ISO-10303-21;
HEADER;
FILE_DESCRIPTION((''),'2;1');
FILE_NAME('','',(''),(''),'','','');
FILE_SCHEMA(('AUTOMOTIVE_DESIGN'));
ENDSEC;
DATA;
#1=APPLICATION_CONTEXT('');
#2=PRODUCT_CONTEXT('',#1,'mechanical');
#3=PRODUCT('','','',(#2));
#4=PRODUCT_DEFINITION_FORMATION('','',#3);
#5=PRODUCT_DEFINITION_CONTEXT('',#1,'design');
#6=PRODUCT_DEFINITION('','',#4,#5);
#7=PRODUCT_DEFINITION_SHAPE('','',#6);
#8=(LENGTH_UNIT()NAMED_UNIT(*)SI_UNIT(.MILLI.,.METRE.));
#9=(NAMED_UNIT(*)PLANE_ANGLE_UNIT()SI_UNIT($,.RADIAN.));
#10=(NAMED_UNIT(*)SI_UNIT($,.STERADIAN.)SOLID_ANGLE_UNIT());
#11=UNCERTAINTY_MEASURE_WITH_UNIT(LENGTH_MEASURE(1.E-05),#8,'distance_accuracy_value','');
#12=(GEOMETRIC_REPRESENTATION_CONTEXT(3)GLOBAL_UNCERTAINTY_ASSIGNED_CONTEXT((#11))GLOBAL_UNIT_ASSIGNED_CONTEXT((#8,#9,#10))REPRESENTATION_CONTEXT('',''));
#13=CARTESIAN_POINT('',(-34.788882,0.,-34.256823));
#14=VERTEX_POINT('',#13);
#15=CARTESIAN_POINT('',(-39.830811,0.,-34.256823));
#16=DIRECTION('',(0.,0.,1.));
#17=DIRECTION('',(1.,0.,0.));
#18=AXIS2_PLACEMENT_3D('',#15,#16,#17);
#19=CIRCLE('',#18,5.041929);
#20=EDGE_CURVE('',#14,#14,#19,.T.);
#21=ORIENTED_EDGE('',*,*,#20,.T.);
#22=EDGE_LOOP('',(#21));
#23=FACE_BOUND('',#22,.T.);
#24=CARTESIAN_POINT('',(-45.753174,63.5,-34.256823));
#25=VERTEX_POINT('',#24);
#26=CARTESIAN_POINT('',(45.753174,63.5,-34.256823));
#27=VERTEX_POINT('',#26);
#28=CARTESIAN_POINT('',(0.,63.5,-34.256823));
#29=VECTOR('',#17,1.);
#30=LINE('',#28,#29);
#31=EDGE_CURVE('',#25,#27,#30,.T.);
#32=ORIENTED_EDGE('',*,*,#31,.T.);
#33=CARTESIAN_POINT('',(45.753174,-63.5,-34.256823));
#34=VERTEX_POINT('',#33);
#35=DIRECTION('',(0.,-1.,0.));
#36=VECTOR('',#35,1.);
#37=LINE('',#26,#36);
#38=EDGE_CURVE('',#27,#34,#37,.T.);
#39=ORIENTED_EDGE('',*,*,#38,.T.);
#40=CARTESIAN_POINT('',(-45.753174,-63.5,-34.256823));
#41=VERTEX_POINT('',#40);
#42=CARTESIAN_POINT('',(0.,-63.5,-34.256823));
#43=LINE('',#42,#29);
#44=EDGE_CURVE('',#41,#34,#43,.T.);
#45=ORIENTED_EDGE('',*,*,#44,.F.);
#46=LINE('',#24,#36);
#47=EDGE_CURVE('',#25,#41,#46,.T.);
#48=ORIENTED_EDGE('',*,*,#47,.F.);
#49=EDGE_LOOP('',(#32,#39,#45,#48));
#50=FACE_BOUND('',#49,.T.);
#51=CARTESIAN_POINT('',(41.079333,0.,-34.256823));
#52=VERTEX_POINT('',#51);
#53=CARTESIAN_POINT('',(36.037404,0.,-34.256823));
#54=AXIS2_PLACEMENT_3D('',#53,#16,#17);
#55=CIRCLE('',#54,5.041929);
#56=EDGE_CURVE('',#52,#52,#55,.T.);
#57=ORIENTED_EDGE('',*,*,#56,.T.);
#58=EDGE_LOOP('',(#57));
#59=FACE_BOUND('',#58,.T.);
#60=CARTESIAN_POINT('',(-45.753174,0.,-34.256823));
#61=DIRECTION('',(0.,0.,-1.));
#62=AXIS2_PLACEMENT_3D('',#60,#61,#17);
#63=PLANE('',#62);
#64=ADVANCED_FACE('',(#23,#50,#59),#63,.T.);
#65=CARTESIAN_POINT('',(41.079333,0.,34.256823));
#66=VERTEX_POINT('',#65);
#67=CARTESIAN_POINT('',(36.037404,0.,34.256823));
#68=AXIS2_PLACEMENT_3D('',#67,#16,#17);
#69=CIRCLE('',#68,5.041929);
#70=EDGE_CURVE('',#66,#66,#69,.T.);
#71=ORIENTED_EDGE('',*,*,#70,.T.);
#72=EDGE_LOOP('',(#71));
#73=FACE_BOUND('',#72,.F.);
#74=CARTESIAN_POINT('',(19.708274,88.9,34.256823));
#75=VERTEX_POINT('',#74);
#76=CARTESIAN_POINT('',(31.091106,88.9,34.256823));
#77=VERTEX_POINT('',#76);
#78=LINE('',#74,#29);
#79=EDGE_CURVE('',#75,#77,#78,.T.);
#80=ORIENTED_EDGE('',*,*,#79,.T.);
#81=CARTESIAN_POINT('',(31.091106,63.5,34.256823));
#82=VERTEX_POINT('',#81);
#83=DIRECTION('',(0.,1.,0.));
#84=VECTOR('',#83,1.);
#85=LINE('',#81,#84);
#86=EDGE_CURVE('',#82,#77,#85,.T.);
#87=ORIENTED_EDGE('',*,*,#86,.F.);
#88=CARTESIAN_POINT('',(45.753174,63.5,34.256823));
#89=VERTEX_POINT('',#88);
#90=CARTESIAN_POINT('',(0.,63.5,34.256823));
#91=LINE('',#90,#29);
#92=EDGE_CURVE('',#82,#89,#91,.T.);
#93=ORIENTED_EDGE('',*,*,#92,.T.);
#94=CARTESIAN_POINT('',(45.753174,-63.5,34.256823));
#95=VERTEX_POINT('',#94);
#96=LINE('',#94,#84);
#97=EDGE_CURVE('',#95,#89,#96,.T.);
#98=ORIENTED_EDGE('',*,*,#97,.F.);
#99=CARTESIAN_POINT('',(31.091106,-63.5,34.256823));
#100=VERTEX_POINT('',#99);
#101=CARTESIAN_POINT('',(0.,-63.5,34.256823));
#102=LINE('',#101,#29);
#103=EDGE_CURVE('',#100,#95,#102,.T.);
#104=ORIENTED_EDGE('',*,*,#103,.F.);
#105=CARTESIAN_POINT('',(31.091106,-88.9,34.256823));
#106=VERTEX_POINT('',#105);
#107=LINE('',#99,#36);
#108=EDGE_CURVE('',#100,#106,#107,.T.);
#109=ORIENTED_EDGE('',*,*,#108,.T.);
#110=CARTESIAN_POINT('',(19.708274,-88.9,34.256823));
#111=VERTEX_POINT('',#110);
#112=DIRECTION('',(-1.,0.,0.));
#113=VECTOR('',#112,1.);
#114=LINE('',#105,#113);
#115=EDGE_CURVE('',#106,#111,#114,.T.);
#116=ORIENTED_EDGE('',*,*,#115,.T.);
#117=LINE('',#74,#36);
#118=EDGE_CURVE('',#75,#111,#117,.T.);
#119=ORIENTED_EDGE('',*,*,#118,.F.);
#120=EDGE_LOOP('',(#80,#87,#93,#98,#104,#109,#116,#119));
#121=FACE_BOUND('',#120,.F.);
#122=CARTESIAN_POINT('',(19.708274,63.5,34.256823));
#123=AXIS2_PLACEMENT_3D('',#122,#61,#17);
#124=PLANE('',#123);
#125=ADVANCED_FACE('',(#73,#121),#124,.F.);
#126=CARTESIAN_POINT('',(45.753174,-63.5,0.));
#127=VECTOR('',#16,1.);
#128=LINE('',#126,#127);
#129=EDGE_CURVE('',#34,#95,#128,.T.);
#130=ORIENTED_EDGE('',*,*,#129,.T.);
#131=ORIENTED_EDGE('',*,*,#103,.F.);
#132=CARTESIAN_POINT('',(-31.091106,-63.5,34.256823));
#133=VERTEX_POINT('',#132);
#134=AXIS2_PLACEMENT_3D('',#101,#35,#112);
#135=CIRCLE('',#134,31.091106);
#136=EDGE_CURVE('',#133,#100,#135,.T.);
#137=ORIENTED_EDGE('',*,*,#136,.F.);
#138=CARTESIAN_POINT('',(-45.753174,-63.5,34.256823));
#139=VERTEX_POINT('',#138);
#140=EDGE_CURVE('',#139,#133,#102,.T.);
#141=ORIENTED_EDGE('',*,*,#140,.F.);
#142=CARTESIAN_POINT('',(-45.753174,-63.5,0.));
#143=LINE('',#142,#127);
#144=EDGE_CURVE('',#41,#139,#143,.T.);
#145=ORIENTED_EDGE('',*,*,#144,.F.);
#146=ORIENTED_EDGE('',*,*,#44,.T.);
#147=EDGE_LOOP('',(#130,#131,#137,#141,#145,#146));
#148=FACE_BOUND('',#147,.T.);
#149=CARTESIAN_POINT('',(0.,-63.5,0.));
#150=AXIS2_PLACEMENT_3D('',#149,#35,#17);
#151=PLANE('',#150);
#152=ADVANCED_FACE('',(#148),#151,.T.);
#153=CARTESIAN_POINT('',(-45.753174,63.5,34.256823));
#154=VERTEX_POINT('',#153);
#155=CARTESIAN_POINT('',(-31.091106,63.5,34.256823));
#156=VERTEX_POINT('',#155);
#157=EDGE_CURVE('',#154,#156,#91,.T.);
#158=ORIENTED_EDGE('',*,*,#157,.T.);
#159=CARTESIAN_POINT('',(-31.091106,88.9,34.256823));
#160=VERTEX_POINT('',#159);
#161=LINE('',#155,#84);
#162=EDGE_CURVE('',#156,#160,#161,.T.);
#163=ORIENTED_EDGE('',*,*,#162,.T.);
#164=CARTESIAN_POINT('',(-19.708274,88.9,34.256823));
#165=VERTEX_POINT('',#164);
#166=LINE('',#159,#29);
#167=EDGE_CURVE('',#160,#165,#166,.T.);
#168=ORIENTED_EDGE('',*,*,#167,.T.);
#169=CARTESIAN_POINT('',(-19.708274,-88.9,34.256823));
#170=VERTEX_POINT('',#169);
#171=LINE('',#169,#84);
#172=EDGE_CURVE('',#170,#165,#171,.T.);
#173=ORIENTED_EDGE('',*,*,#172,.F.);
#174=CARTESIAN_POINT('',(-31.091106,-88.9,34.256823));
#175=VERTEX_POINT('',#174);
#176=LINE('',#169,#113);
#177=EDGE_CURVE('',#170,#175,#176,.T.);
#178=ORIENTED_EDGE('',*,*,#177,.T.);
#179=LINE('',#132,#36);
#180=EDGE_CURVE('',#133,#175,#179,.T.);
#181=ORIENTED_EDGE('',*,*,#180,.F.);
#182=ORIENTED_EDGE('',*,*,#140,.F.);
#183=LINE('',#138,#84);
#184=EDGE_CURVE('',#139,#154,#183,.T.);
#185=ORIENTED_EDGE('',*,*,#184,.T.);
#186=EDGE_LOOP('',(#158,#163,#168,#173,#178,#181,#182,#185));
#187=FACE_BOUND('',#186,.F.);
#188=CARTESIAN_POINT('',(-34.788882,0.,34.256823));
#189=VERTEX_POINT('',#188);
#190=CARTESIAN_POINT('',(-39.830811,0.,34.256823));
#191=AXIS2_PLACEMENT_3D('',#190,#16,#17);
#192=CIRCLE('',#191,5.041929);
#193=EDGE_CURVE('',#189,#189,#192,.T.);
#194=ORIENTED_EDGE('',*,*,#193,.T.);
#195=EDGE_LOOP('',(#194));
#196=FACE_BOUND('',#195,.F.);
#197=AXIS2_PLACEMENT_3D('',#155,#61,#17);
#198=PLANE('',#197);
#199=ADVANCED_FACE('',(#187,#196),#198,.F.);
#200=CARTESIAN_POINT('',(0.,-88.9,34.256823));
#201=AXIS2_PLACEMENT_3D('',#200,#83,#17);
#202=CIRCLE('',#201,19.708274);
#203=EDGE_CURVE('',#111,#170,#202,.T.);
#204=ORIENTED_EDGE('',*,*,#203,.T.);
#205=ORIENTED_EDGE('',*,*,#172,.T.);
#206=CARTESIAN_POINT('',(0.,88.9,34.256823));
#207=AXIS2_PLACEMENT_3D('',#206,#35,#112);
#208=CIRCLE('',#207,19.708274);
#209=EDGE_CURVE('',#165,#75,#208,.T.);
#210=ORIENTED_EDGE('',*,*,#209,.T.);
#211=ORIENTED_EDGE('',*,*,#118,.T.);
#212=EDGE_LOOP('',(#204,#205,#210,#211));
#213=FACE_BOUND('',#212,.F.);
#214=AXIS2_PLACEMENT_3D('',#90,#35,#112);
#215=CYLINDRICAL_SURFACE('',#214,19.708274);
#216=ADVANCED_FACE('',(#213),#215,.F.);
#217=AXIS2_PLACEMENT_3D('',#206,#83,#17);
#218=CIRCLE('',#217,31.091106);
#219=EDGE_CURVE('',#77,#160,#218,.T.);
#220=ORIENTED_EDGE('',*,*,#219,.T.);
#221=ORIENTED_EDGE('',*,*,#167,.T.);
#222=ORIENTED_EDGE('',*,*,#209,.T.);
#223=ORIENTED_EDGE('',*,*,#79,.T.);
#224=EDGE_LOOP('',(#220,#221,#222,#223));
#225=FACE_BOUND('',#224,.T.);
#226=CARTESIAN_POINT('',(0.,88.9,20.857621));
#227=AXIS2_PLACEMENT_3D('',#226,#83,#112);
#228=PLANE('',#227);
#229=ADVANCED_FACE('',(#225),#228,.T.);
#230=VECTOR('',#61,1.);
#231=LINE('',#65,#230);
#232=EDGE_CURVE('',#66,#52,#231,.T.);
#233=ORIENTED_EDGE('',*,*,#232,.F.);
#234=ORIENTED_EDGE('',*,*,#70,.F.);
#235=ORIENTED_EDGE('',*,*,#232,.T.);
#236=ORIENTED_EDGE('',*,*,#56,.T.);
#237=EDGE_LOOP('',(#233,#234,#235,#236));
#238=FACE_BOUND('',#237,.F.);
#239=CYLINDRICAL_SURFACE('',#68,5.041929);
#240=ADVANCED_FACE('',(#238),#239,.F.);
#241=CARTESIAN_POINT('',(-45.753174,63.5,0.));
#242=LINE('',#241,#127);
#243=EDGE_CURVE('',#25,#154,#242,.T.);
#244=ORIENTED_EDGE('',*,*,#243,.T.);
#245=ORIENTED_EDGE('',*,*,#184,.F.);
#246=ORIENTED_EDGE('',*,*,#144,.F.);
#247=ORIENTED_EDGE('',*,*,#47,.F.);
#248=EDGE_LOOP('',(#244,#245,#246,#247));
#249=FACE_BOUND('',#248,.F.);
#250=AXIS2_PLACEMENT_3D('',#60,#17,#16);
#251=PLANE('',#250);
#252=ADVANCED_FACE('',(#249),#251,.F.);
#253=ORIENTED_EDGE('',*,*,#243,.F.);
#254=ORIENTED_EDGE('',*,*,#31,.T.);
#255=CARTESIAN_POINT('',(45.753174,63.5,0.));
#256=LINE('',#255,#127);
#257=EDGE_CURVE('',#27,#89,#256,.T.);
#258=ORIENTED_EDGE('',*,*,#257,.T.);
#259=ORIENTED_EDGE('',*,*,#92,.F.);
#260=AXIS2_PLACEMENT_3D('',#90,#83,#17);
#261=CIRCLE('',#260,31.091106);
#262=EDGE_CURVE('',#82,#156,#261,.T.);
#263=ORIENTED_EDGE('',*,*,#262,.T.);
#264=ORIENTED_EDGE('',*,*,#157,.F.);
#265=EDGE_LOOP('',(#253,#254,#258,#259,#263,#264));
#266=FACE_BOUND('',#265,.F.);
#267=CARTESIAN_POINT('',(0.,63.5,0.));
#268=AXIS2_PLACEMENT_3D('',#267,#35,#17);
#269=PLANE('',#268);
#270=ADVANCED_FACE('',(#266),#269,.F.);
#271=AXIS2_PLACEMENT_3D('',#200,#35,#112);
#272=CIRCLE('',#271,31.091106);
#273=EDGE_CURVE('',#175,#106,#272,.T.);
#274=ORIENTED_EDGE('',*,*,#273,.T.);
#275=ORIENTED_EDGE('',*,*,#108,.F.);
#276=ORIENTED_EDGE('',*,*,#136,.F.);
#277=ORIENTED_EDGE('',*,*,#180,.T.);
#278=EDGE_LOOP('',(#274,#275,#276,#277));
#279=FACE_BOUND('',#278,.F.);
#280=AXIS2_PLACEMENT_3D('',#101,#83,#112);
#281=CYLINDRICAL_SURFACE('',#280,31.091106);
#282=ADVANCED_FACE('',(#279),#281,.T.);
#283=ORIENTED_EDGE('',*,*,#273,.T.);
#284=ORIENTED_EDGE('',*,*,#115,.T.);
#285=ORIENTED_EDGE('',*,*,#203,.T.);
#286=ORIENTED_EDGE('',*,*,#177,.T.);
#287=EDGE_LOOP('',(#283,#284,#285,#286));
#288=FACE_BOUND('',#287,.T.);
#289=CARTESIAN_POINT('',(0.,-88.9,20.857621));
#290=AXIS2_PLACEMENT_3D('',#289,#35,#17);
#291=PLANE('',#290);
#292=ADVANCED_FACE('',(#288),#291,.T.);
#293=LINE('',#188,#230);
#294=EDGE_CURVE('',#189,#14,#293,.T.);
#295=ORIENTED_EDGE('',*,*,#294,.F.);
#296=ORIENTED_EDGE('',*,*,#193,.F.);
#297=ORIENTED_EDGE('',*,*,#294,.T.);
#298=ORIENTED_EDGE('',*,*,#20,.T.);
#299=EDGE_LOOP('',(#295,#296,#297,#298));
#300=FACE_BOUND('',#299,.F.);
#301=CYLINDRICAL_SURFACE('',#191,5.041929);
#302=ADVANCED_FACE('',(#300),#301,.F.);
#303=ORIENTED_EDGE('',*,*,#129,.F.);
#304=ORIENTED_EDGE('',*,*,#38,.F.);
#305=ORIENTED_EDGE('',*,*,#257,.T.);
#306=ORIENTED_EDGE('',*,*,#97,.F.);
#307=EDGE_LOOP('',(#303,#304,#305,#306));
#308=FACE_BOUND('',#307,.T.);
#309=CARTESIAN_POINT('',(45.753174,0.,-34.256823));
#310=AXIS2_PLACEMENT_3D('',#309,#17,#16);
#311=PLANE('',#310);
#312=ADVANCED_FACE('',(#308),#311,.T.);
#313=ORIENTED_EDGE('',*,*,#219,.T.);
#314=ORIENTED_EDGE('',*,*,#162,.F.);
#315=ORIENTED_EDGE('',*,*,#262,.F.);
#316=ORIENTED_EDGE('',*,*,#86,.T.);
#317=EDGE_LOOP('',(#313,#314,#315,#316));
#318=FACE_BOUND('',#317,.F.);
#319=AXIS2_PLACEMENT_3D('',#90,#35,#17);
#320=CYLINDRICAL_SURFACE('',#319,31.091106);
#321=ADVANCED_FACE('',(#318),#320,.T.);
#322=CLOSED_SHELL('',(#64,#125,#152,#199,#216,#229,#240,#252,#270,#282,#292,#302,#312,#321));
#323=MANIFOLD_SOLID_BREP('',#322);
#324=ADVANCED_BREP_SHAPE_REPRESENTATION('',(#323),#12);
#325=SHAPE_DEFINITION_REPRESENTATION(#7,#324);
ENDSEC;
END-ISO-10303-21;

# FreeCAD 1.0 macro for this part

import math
import FreeCAD as App
import Part
import Sketcher


def add_polygon(sketch, points):
    """Adds a closed chain of lines whose ends are joined by coincident constraints."""
    first, n = sketch.GeometryCount, len(points)
    for a, b in zip(points, points[1:] + points[:1]):
        sketch.addGeometry(Part.LineSegment(App.Vector(*a, 0), App.Vector(*b, 0)), False)
    for i in range(n):
        sketch.addConstraint(Sketcher.Constraint("Coincident", first + i, 2, first + (i + 1) % n, 1))

doc = App.newDocument("Part")
params = doc.addObject("Spreadsheet::Sheet", "Params")
for row, (alias, value) in enumerate([
    ("pad1_length", "5 in"),
    ("pad2_length", "1 in"),
    ("pad3_length", "1 in"),
], start=1):
    params.set(f"A{row}", alias)
    params.set(f"B{row}", "=" + value)
    params.setAlias(f"B{row}", alias)

body = doc.addObject("PartDesign::Body", "Body")

sketch1 = body.newObject("Sketcher::SketchObject", "Sketch")
sketch1.AttachmentSupport = (doc.getObject("XZ_Plane"), [""])
sketch1.MapMode = "FlatFace"
add_polygon(sketch1, [(-46, 34), (-46, -34), (46, -34), (46, 34)])
sketch1.addConstraint(Sketcher.Constraint("Vertical", 0))
sketch1.addConstraint(Sketcher.Constraint("Horizontal", 1))
sketch1.addConstraint(Sketcher.Constraint("Vertical", 2))
sketch1.addConstraint(Sketcher.Constraint("Horizontal", 3))
sketch1.addConstraint(Sketcher.Constraint("Symmetric", 0, 2, 2, 2, -1, 1))
sketch1.addConstraint(Sketcher.Constraint("DistanceX", 1, 1, 1, 2, 91.506348))
sketch1.addConstraint(Sketcher.Constraint("DistanceY", 0, 2, 0, 1, 68.513646))
pad1 = body.newObject("PartDesign::Pad", "Pad")
pad1.Profile = sketch1
pad1.setExpression("Length", "Params.pad1_length")
pad1.Midplane = True

sketch2 = body.newObject("Sketcher::SketchObject", "Sketch001")
sketch2.AttachmentSupport = (doc.getObject("XZ_Plane"), [""])
sketch2.MapMode = "FlatFace"
sketch2.AttachmentOffset = App.Placement(App.Vector(0, 0, 2.5 * 25.4), App.Rotation())
sketch2.addGeometry(Part.LineSegment(App.Vector(-20, 34, 0), App.Vector(-31, 34, 0)), False)
sketch2.addGeometry(Part.ArcOfCircle(Part.Circle(App.Vector(0, 34, 0), App.Vector(0, 0, 1), 31), math.radians(180), math.radians(360)), False)
sketch2.addGeometry(Part.LineSegment(App.Vector(31, 34, 0), App.Vector(20, 34, 0)), False)
sketch2.addGeometry(Part.ArcOfCircle(Part.Circle(App.Vector(0, 34, 0), App.Vector(0, 0, 1), 20), math.radians(180), math.radians(360)), False)
sketch2.addConstraint(Sketcher.Constraint("Coincident", 0, 2, 1, 1))
sketch2.addConstraint(Sketcher.Constraint("Coincident", 1, 2, 2, 1))
sketch2.addConstraint(Sketcher.Constraint("Coincident", 2, 2, 3, 2))
sketch2.addConstraint(Sketcher.Constraint("Coincident", 3, 1, 0, 1))
sketch2.addConstraint(Sketcher.Constraint("Horizontal", 0))
sketch2.addConstraint(Sketcher.Constraint("Horizontal", 2))
sketch2.addConstraint(Sketcher.Constraint("Coincident", 3, 3, 1, 3))
sketch2.addConstraint(Sketcher.Constraint("Symmetric", 0, 2, 1, 2, -2))
sketch2.addConstraint(Sketcher.Constraint("Horizontal", 3, 3, 0, 2))
sketch2.addConstraint(Sketcher.Constraint("Radius", 1, 31.091106))
sketch2.addConstraint(Sketcher.Constraint("Radius", 3, 19.708274))
sketch2.addConstraint(Sketcher.Constraint("DistanceY", -1, 1, 1, 3, 34.256823))
pad2 = body.newObject("PartDesign::Pad", "Pad001")
pad2.Profile = sketch2
pad2.setExpression("Length", "Params.pad2_length")

sketch3 = body.newObject("Sketcher::SketchObject", "Sketch002")
sketch3.AttachmentSupport = (doc.getObject("XZ_Plane"), [""])
sketch3.MapMode = "FlatFace"
sketch3.AttachmentOffset = App.Placement(App.Vector(0, 0, 3.5 * 25.4), App.Rotation())
sketch3.addGeometry(Part.LineSegment(App.Vector(20, 34, 0), App.Vector(-20, 34, 0)), False)
sketch3.addGeometry(Part.ArcOfCircle(Part.Circle(App.Vector(0, 34, 0), App.Vector(0, 0, 1), 20), math.radians(180), math.radians(360)), False)
sketch3.addConstraint(Sketcher.Constraint("Coincident", 0, 1, 1, 2))
sketch3.addConstraint(Sketcher.Constraint("Coincident", 1, 1, 0, 2))
sketch3.addConstraint(Sketcher.Constraint("Horizontal", 0))
sketch3.addConstraint(Sketcher.Constraint("PointOnObject", 1, 3, -2))
sketch3.addConstraint(Sketcher.Constraint("Horizontal", 1, 3, 0, 1))
sketch3.addConstraint(Sketcher.Constraint("Radius", 1, 19.708274))
sketch3.addConstraint(Sketcher.Constraint("DistanceY", -1, 1, 1, 3, 34.256823))
pocket1 = body.newObject("PartDesign::Pocket", "Pocket")
pocket1.Profile = sketch3
pocket1.Type = "ThroughAll"

sketch4 = body.newObject("Sketcher::SketchObject", "Sketch003")
sketch4.AttachmentSupport = (doc.getObject("XZ_Plane"), [""])
sketch4.MapMode = "FlatFace"
sketch4.AttachmentOffset = App.Placement(App.Vector(0, 0, -2.5 * 25.4), App.Rotation())
sketch4.addGeometry(Part.ArcOfCircle(Part.Circle(App.Vector(0, 34, 0), App.Vector(0, 0, 1), 31), math.radians(180), math.radians(360)), False)
sketch4.addGeometry(Part.LineSegment(App.Vector(-31, 34, 0), App.Vector(-20, 34, 0)), False)
sketch4.addGeometry(Part.ArcOfCircle(Part.Circle(App.Vector(0, 34, 0), App.Vector(0, 0, 1), 20), math.radians(180), math.radians(360)), False)
sketch4.addGeometry(Part.LineSegment(App.Vector(20, 34, 0), App.Vector(31, 34, 0)), False)
sketch4.addConstraint(Sketcher.Constraint("Coincident", 0, 1, 1, 1))
sketch4.addConstraint(Sketcher.Constraint("Coincident", 1, 2, 2, 1))
sketch4.addConstraint(Sketcher.Constraint("Coincident", 2, 2, 3, 1))
sketch4.addConstraint(Sketcher.Constraint("Coincident", 3, 2, 0, 2))
sketch4.addConstraint(Sketcher.Constraint("Horizontal", 1))
sketch4.addConstraint(Sketcher.Constraint("Horizontal", 3))
sketch4.addConstraint(Sketcher.Constraint("Coincident", 2, 3, 0, 3))
sketch4.addConstraint(Sketcher.Constraint("Symmetric", 1, 2, 2, 2, -2))
sketch4.addConstraint(Sketcher.Constraint("Horizontal", 2, 3, 0, 1))
sketch4.addConstraint(Sketcher.Constraint("Radius", 0, 31.091106))
sketch4.addConstraint(Sketcher.Constraint("Radius", 2, 19.708274))
sketch4.addConstraint(Sketcher.Constraint("DistanceY", -1, 1, 0, 3, 34.256823))
pad3 = body.newObject("PartDesign::Pad", "Pad002")
pad3.Profile = sketch4
pad3.setExpression("Length", "Params.pad3_length")
pad3.Reversed = True

sketch5 = body.newObject("Sketcher::SketchObject", "Sketch004")
sketch5.AttachmentSupport = (doc.getObject("XY_Plane"), [""])
sketch5.MapMode = "FlatFace"
sketch5.AttachmentOffset = App.Placement(App.Vector(0, 0, 34.256823), App.Rotation())
sketch5.addGeometry(Part.Circle(App.Vector(36, 0, 0), App.Vector(0, 0, 1), 5), False)
sketch5.addGeometry(Part.Circle(App.Vector(-40, 0, 0), App.Vector(0, 0, 1), 5), False)
sketch5.addConstraint(Sketcher.Constraint("Equal", 0, 1))
sketch5.addConstraint(Sketcher.Constraint("PointOnObject", 0, 3, -1))
sketch5.addConstraint(Sketcher.Constraint("PointOnObject", 1, 3, -1))
sketch5.addConstraint(Sketcher.Constraint("Diameter", 0, 10.083858))
sketch5.addConstraint(Sketcher.Constraint("DistanceX", 1, 3, -1, 1, 39.830811))
sketch5.addConstraint(Sketcher.Constraint("DistanceX", -1, 1, 0, 3, 36.037404))
pocket2 = body.newObject("PartDesign::Pocket", "Pocket001")
pocket2.Profile = sketch5
pocket2.Type = "ThroughAll"

doc.recompute()
